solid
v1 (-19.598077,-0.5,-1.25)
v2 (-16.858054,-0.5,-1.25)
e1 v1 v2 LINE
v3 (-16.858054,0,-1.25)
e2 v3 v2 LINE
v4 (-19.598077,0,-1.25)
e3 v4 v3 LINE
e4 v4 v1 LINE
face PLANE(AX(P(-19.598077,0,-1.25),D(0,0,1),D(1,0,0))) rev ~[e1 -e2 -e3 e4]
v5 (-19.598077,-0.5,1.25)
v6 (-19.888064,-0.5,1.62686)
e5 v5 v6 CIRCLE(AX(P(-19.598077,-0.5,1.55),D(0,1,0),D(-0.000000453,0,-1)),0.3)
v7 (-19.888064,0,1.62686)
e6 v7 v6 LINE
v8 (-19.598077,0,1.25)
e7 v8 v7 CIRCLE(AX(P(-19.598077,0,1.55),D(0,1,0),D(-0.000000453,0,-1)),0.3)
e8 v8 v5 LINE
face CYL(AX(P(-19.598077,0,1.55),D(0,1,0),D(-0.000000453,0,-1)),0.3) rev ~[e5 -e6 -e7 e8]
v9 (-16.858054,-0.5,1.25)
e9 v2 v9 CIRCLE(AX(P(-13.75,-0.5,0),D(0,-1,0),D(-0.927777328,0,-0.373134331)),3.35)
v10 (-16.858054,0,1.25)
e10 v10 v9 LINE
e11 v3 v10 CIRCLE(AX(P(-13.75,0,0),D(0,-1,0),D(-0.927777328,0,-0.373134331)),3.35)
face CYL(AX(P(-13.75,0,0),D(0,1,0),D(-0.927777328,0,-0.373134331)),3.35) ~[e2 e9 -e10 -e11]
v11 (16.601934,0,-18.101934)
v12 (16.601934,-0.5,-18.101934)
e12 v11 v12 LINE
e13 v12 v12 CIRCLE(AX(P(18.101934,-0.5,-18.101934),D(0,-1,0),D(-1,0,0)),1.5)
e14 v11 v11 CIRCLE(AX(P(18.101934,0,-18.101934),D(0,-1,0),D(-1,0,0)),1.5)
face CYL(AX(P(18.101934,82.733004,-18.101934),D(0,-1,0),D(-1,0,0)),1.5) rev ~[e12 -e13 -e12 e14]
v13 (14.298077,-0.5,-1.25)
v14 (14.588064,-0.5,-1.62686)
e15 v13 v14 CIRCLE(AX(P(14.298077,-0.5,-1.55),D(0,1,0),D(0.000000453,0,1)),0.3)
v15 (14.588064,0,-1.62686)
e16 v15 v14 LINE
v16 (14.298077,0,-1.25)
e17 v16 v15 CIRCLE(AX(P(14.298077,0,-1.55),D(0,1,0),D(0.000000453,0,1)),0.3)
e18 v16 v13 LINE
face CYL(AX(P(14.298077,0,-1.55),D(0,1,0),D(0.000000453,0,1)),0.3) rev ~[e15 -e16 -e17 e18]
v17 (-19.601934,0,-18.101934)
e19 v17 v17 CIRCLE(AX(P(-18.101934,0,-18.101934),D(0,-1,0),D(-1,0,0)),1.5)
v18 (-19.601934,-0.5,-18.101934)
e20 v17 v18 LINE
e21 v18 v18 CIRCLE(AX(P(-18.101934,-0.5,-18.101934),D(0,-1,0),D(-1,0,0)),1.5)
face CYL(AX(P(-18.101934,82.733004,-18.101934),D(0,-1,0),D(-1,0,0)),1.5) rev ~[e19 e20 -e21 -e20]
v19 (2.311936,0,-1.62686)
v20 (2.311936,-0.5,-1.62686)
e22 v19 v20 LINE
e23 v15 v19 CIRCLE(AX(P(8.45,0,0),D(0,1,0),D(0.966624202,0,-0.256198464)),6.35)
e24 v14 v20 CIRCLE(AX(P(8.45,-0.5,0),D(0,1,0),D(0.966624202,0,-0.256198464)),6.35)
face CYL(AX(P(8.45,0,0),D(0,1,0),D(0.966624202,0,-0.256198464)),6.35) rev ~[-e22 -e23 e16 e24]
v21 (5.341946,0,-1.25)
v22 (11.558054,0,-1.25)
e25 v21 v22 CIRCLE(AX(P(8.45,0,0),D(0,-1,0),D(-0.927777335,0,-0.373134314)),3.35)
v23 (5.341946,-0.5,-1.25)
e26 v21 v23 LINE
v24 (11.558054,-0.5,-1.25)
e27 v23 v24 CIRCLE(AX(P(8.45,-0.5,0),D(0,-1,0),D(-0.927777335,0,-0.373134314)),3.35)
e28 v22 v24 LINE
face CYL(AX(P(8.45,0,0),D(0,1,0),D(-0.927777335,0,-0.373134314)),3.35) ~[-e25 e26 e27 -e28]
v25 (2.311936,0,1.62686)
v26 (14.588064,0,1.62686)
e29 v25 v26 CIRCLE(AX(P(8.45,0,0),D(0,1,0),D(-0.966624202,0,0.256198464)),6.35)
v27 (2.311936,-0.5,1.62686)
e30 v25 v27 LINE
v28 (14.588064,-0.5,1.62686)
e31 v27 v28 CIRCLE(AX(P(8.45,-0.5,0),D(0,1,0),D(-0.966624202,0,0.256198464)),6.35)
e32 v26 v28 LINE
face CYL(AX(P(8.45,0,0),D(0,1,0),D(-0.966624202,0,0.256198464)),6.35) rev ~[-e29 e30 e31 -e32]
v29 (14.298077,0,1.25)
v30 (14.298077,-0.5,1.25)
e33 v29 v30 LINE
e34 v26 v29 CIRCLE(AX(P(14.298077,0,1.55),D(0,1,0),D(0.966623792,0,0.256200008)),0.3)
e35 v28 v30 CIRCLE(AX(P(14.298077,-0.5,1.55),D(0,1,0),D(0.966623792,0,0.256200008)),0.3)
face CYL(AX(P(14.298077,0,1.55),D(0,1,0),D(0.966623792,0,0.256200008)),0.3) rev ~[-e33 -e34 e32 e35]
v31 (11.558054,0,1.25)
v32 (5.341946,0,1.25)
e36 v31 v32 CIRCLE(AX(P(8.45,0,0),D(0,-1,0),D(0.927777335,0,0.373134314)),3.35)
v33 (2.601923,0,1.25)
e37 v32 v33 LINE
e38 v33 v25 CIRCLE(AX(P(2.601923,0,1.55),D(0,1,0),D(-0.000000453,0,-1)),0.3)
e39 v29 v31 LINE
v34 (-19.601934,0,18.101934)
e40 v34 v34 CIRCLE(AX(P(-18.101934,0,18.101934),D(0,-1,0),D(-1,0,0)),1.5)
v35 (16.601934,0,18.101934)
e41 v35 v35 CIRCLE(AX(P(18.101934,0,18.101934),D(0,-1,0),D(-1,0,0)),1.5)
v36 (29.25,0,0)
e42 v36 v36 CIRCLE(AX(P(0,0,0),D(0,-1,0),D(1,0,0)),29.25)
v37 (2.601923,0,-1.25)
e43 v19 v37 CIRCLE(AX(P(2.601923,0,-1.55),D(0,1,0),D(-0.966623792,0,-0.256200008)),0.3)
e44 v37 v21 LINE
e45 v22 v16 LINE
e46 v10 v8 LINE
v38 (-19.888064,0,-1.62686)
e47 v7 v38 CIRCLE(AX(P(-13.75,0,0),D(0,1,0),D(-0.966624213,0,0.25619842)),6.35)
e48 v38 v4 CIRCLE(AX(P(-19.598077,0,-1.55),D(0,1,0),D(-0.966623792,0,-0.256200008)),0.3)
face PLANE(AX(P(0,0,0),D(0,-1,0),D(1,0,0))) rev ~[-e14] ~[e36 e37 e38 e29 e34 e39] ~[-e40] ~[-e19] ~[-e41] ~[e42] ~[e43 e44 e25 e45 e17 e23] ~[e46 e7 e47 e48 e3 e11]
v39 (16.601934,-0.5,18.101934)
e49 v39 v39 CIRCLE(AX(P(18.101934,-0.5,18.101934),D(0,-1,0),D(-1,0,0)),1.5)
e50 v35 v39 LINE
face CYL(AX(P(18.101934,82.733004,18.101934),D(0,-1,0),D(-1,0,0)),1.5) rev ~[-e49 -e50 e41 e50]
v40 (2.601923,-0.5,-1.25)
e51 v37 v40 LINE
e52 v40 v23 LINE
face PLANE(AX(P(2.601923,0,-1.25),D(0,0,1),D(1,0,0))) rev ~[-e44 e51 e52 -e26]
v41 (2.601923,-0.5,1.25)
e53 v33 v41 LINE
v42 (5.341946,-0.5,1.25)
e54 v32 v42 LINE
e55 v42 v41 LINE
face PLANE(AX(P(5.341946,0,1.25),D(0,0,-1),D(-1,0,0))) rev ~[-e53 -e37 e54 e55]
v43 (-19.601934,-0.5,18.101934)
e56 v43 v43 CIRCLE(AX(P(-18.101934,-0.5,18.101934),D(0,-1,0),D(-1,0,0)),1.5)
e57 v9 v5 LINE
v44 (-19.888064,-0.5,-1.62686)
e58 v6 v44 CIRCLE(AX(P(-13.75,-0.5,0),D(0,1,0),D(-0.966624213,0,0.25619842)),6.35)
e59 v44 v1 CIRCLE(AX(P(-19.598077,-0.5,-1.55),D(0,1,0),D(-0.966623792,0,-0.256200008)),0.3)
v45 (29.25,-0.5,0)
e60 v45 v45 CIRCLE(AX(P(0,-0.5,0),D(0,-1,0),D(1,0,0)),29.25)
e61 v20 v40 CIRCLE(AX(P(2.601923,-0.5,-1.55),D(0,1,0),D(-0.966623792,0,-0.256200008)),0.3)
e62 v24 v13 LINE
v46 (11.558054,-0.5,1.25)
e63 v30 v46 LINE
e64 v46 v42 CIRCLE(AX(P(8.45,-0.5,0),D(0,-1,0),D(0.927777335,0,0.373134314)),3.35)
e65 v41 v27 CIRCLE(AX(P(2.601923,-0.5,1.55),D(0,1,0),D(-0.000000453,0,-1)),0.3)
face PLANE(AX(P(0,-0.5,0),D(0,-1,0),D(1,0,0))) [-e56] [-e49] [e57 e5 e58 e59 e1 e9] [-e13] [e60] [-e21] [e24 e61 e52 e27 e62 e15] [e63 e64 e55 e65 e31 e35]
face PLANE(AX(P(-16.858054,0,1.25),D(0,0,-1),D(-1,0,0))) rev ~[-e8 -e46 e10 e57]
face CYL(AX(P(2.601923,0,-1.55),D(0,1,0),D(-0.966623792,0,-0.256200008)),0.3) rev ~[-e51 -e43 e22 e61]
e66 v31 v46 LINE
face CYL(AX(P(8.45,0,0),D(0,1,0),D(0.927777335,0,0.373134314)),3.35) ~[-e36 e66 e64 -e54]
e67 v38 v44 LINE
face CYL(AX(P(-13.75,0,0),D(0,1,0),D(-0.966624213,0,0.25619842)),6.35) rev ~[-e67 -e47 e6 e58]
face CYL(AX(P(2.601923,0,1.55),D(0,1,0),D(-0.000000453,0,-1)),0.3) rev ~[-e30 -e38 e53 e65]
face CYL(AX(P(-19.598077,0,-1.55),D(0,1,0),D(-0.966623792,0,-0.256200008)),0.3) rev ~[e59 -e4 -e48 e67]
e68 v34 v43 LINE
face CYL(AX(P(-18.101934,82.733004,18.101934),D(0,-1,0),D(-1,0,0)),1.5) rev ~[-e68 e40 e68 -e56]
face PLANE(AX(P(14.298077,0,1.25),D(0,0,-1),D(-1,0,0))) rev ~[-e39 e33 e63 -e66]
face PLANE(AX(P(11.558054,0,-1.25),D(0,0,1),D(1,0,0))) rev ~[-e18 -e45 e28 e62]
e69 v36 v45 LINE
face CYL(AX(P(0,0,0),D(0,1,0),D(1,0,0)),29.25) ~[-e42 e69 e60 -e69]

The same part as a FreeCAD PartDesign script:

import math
import FreeCAD as App
import Part
import Sketcher
Q = App.Units.Quantity

doc = App.newDocument("Part")
body = doc.addObject("PartDesign::Body", "Body")

# Sketch on XZ plane
sketch1 = body.newObject("Sketcher::SketchObject", "Sketch")
sketch1.AttachmentSupport = (doc.getObject("XZ_Plane"), [""])
sketch1.MapMode = "FlatFace"
sketch1.addGeometry(Part.Circle(App.Vector(0, 0, 0), App.Vector(0, 0, 1), 29.25), False)
sketch1.addGeometry(Part.ArcOfCircle(Part.Circle(App.Vector(14.3, -1.55, 0), App.Vector(0, 0, 1), 0.3), math.radians(-15), math.radians(90)), False)
sketch1.addGeometry(Part.ArcOfCircle(Part.Circle(App.Vector(8.45, 0, 0), App.Vector(0, 0, 1), 6.35), math.radians(-165), math.radians(-15)), False)
sketch1.addGeometry(Part.ArcOfCircle(Part.Circle(App.Vector(2.6, -1.55, 0), App.Vector(0, 0, 1), 0.3), math.radians(90), math.radians(195)), False)
sketch1.addGeometry(Part.LineSegment(App.Vector(2.6, -1.25, 0), App.Vector(5.34, -1.25, 0)), False)
sketch1.addGeometry(Part.ArcOfCircle(Part.Circle(App.Vector(8.45, 0, 0), App.Vector(0, 0, 1), 3.35), math.radians(-158), math.radians(-22)), False)
sketch1.addGeometry(Part.LineSegment(App.Vector(11.56, -1.25, 0), App.Vector(14.3, -1.25, 0)), False)
sketch1.addGeometry(Part.ArcOfCircle(Part.Circle(App.Vector(-19.6, 1.55, 0), App.Vector(0, 0, 1), 0.3), math.radians(165), math.radians(270)), False)
sketch1.addGeometry(Part.ArcOfCircle(Part.Circle(App.Vector(-13.75, 0, 0), App.Vector(0, 0, 1), 6.35), math.radians(-165), math.radians(165)), False)
sketch1.addGeometry(Part.ArcOfCircle(Part.Circle(App.Vector(-19.6, -1.55, 0), App.Vector(0, 0, 1), 0.3), math.radians(90), math.radians(195)), False)
sketch1.addGeometry(Part.LineSegment(App.Vector(-19.6, -1.25, 0), App.Vector(-16.86, -1.25, 0)), False)
sketch1.addGeometry(Part.ArcOfCircle(Part.Circle(App.Vector(-13.75, 0, 0), App.Vector(0, 0, 1), 3.35), math.radians(-158), math.radians(158)), False)
sketch1.addGeometry(Part.LineSegment(App.Vector(-16.86, 1.25, 0), App.Vector(-19.6, 1.25, 0)), False)
sketch1.addGeometry(Part.ArcOfCircle(Part.Circle(App.Vector(8.45, 0, 0), App.Vector(0, 0, 1), 3.35), math.radians(22), math.radians(158)), False)
sketch1.addGeometry(Part.LineSegment(App.Vector(5.34, 1.25, 0), App.Vector(2.6, 1.25, 0)), False)
sketch1.addGeometry(Part.ArcOfCircle(Part.Circle(App.Vector(2.6, 1.55, 0), App.Vector(0, 0, 1), 0.3), math.radians(165), math.radians(270)), False)
sketch1.addGeometry(Part.ArcOfCircle(Part.Circle(App.Vector(8.45, 0, 0), App.Vector(0, 0, 1), 6.35), math.radians(15), math.radians(165)), False)
sketch1.addGeometry(Part.ArcOfCircle(Part.Circle(App.Vector(14.3, 1.55, 0), App.Vector(0, 0, 1), 0.3), math.radians(-90), math.radians(15)), False)
sketch1.addGeometry(Part.LineSegment(App.Vector(14.3, 1.25, 0), App.Vector(11.56, 1.25, 0)), False)
sketch1.addConstraint(Sketcher.Constraint("Tangent", 1, 1, 2, 2))
sketch1.addConstraint(Sketcher.Constraint("Tangent", 2, 1, 3, 2))
sketch1.addConstraint(Sketcher.Constraint("Tangent", 3, 1, 4, 1))
sketch1.addConstraint(Sketcher.Constraint("Coincident", 4, 2, 5, 1))
sketch1.addConstraint(Sketcher.Constraint("Coincident", 5, 2, 6, 1))
sketch1.addConstraint(Sketcher.Constraint("Tangent", 6, 2, 1, 2))
sketch1.addConstraint(Sketcher.Constraint("Tangent", 7, 1, 8, 2))
sketch1.addConstraint(Sketcher.Constraint("Tangent", 8, 1, 9, 2))
sketch1.addConstraint(Sketcher.Constraint("Tangent", 9, 1, 10, 1))
sketch1.addConstraint(Sketcher.Constraint("Coincident", 10, 2, 11, 1))
sketch1.addConstraint(Sketcher.Constraint("Coincident", 11, 2, 12, 1))
sketch1.addConstraint(Sketcher.Constraint("Tangent", 12, 2, 7, 2))
sketch1.addConstraint(Sketcher.Constraint("Coincident", 13, 2, 14, 1))
sketch1.addConstraint(Sketcher.Constraint("Tangent", 14, 2, 15, 2))
sketch1.addConstraint(Sketcher.Constraint("Tangent", 15, 1, 16, 2))
sketch1.addConstraint(Sketcher.Constraint("Tangent", 16, 1, 17, 2))
sketch1.addConstraint(Sketcher.Constraint("Tangent", 17, 1, 18, 1))
sketch1.addConstraint(Sketcher.Constraint("Coincident", 18, 2, 13, 1))
sketch1.addConstraint(Sketcher.Constraint("Horizontal", 4))
sketch1.addConstraint(Sketcher.Constraint("Horizontal", 6))
sketch1.addConstraint(Sketcher.Constraint("Horizontal", 10))
sketch1.addConstraint(Sketcher.Constraint("Horizontal", 12))
sketch1.addConstraint(Sketcher.Constraint("Horizontal", 14))
sketch1.addConstraint(Sketcher.Constraint("Horizontal", 18))
sketch1.addConstraint(Sketcher.Constraint("Coincident", 0, 3, -1, 1))
sketch1.addConstraint(Sketcher.Constraint("Coincident", 5, 3, 2, 3))
sketch1.addConstraint(Sketcher.Constraint("Coincident", 11, 3, 8, 3))
sketch1.addConstraint(Sketcher.Constraint("Coincident", 13, 3, 2, 3))
sketch1.addConstraint(Sketcher.Constraint("Coincident", 16, 3, 2, 3))
sketch1.addConstraint(Sketcher.Constraint("Equal", 1, 3))
sketch1.addConstraint(Sketcher.Constraint("Equal", 3, 7))
sketch1.addConstraint(Sketcher.Constraint("Equal", 2, 8))
sketch1.addConstraint(Sketcher.Constraint("Equal", 7, 9))
sketch1.addConstraint(Sketcher.Constraint("Equal", 5, 11))
sketch1.addConstraint(Sketcher.Constraint("Equal", 11, 13))
sketch1.addConstraint(Sketcher.Constraint("Equal", 9, 15))
sketch1.addConstraint(Sketcher.Constraint("Equal", 8, 16))
sketch1.addConstraint(Sketcher.Constraint("Equal", 15, 17))
sketch1.addConstraint(Sketcher.Constraint("Symmetric", 7, 3, 9, 3, -1))
sketch1.addConstraint(Sketcher.Constraint("Symmetric", 3, 3, 15, 3, -1))
sketch1.addConstraint(Sketcher.Constraint("Horizontal", 1, 3, 3, 3))
sketch1.addConstraint(Sketcher.Constraint("Horizontal", 3, 3, 9, 3))
sketch1.addConstraint(Sketcher.Constraint("Horizontal", 15, 3, 17, 3))
sketch1.addConstraint(Sketcher.Constraint("Diameter", 0, Q("58.5 mm")))
sketch1.addConstraint(Sketcher.Constraint("Radius", 1, Q("0.3 mm")))
sketch1.addConstraint(Sketcher.Constraint("Radius", 2, Q("6.35 mm")))
sketch1.addConstraint(Sketcher.Constraint("Radius", 5, Q("3.35 mm")))
sketch1.addConstraint(Sketcher.Constraint("DistanceX", 7, 3, 3, 3, Q("22.2 mm")))
sketch1.addConstraint(Sketcher.Constraint("DistanceY", 3, 3, 7, 3, Q("3.1 mm")))
sketch1.addConstraint(Sketcher.Constraint("DistanceX", -1, 1, 2, 3, Q("8.45 mm")))
pad1 = body.newObject("PartDesign::Pad", "Pad")
pad1.Profile = sketch1
pad1.Length = 0.5

# Sketch on XZ plane
sketch2 = body.newObject("Sketcher::SketchObject", "Sketch001")
sketch2.AttachmentSupport = (doc.getObject("XZ_Plane"), [""])
sketch2.MapMode = "FlatFace"
sketch2.addGeometry(Part.Circle(App.Vector(-18.1, -18.1, 0), App.Vector(0, 0, 1), 1.5), False)
sketch2.addGeometry(Part.Circle(App.Vector(18.1, -18.1, 0), App.Vector(0, 0, 1), 1.5), False)
sketch2.addGeometry(Part.Circle(App.Vector(18.1, 18.1, 0), App.Vector(0, 0, 1), 1.5), False)
sketch2.addGeometry(Part.Circle(App.Vector(-18.1, 18.1, 0), App.Vector(0, 0, 1), 1.5), False)
sketch2.addConstraint(Sketcher.Constraint("Equal", 0, 1))
sketch2.addConstraint(Sketcher.Constraint("Equal", 1, 2))
sketch2.addConstraint(Sketcher.Constraint("Equal", 2, 3))
sketch2.addConstraint(Sketcher.Constraint("Symmetric", 0, 3, 2, 3, -1, 1))
sketch2.addConstraint(Sketcher.Constraint("Symmetric", 1, 3, 3, 3, -1, 1))
sketch2.addConstraint(Sketcher.Constraint("Symmetric", 0, 3, 1, 3, -2))
sketch2.addConstraint(Sketcher.Constraint("Diameter", 0, Q("3 mm")))
sketch2.addConstraint(Sketcher.Constraint("DistanceX", 0, 3, -1, 1, Q("18.101934 mm")))
sketch2.addConstraint(Sketcher.Constraint("DistanceY", 0, 3, -1, 1, Q("18.101934 mm")))
doc.recompute()
hole = body.newObject("PartDesign::Hole", "Hole")
hole.Profile = sketch2
hole.ThreadType = "None"
hole.Diameter = 3
hole.DepthType = "ThroughAll"
hole.Reversed = True

doc.recompute()
